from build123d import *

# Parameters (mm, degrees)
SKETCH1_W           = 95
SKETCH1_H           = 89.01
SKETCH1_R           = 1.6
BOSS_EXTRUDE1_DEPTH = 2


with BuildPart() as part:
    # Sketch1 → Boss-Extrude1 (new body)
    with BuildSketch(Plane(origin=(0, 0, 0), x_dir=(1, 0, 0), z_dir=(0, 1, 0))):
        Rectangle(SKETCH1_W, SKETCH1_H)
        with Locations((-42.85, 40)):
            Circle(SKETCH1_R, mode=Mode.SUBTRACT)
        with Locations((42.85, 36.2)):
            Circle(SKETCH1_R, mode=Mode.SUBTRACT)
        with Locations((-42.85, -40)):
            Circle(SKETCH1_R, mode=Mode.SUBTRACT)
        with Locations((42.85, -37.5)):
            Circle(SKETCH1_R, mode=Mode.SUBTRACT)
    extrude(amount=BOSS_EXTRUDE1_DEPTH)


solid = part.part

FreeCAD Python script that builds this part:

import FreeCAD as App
import Part
import Sketcher
from FreeCAD import Vector

doc = App.newDocument("Part")
body = doc.addObject("PartDesign::Body", "Body")

# Sketch on XZ plane
sketch1 = body.newObject("Sketcher::SketchObject", "Sketch")
sketch1.AttachmentSupport = (doc.getObject("XZ_Plane"), [""])
sketch1.MapMode = "FlatFace"
sketch1.addGeometry(Part.LineSegment(Vector(-47.5, -44.505, 0), Vector(-47.5, 44.505, 0)), False)
sketch1.addGeometry(Part.LineSegment(Vector(-47.5, 44.505, 0), Vector(47.5, 44.505, 0)), False)
sketch1.addGeometry(Part.LineSegment(Vector(47.5, 44.505, 0), Vector(47.5, -44.505, 0)), False)
sketch1.addGeometry(Part.LineSegment(Vector(47.5, -44.505, 0), Vector(-47.5, -44.505, 0)), False)
sketch1.addGeometry(Part.Circle(Vector(-42.85, 40, 0), Vector(0, 0, 1), 1.6), False)
sketch1.addGeometry(Part.Circle(Vector(42.85, 37.5, 0), Vector(0, 0, 1), 1.6), False)
sketch1.addGeometry(Part.Circle(Vector(-42.85, -40, 0), Vector(0, 0, 1), 1.6), False)
sketch1.addGeometry(Part.Circle(Vector(42.85, -36.2, 0), Vector(0, 0, 1), 1.6), False)
sketch1.addConstraint(Sketcher.Constraint("Coincident", 0, 2, 1, 1))
sketch1.addConstraint(Sketcher.Constraint("Coincident", 1, 2, 2, 1))
sketch1.addConstraint(Sketcher.Constraint("Coincident", 2, 2, 3, 1))
sketch1.addConstraint(Sketcher.Constraint("Coincident", 3, 2, 0, 1))
sketch1.addConstraint(Sketcher.Constraint("Vertical", 0))
sketch1.addConstraint(Sketcher.Constraint("Horizontal", 1))
sketch1.addConstraint(Sketcher.Constraint("Vertical", 2))
sketch1.addConstraint(Sketcher.Constraint("Horizontal", 3))
sketch1.addConstraint(Sketcher.Constraint("Equal", 4, 5))
sketch1.addConstraint(Sketcher.Constraint("Equal", 5, 6))
sketch1.addConstraint(Sketcher.Constraint("Equal", 6, 7))
sketch1.addConstraint(Sketcher.Constraint("Symmetric", 0, 2, 2, 2, -1, 1))
sketch1.addConstraint(Sketcher.Constraint("Symmetric", 4, 3, 6, 3, -1))
sketch1.addConstraint(Sketcher.Constraint("Vertical", 5, 3, 7, 3))
sketch1.addConstraint(Sketcher.Constraint("Diameter", 4, 3.2))
sketch1.addConstraint(Sketcher.Constraint("DistanceX", 1, 1, 1, 2, 95.0))
sketch1.addConstraint(Sketcher.Constraint("DistanceY", -1, 1, 4, 3, 40.0))
sketch1.addConstraint(Sketcher.Constraint("DistanceY", 0, 1, 0, 2, 89.01))
sketch1.addConstraint(Sketcher.Constraint("DistanceY", -1, 1, 5, 3, 37.5))
sketch1.addConstraint(Sketcher.Constraint("DistanceY", 7, 3, -1, 1, 36.2))
sketch1.addConstraint(Sketcher.Constraint("DistanceX", 4, 3, 5, 3, 85.7))
sketch1.addConstraint(Sketcher.Constraint("DistanceX", 4, 3, -1, 1, 42.85))
pad1 = body.newObject("PartDesign::Pad", "Pad")
pad1.Profile = sketch1
pad1.Length = 2
pad1.Reversed = True

doc.recompute()
